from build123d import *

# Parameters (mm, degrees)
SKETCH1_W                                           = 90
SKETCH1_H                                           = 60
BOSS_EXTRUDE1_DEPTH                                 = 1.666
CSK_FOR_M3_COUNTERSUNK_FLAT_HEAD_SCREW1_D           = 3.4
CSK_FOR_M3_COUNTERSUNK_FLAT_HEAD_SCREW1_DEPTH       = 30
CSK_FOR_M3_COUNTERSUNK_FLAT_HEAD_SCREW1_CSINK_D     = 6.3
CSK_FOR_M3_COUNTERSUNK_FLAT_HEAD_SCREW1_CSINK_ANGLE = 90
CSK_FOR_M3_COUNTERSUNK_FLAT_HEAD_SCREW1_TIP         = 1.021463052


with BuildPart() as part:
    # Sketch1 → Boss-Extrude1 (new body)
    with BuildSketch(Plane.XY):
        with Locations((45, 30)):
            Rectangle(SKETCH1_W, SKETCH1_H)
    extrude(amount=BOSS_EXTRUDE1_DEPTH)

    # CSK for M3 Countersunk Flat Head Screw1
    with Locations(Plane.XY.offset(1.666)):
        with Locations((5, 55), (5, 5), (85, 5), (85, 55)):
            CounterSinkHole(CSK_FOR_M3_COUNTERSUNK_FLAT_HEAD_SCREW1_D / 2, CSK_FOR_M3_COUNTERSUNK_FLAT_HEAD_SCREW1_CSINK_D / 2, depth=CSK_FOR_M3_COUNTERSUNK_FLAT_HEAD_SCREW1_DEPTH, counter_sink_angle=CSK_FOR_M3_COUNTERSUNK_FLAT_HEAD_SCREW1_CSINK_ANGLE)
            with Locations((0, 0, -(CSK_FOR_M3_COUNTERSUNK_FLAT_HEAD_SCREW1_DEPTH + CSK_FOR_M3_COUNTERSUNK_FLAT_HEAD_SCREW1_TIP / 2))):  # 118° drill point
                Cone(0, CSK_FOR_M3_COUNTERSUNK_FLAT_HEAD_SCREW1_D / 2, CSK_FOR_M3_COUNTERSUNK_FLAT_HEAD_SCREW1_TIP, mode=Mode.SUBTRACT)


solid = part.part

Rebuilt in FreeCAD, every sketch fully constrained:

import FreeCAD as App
import Part
import Sketcher

V = App.Vector


def add_polygon(sketch, points):
    """Adds a closed chain of lines whose ends are joined by coincident constraints."""
    first, n = sketch.GeometryCount, len(points)
    for a, b in zip(points, points[1:] + points[:1]):
        sketch.addGeometry(Part.LineSegment(App.Vector(*a, 0), App.Vector(*b, 0)), False)
    for i in range(n):
        sketch.addConstraint(Sketcher.Constraint("Coincident", first + i, 2, first + (i + 1) % n, 1))

doc = App.newDocument("Part")
body = doc.addObject("PartDesign::Body", "Body")

# Sketch on XY plane
sketch1 = body.newObject("Sketcher::SketchObject", "Sketch")
sketch1.AttachmentSupport = (doc.getObject("XY_Plane"), [""])
sketch1.MapMode = "FlatFace"
add_polygon(sketch1, [(0, 60), (0, 0), (90, 0), (90, 60)])  # lines 0-3
sketch1.addConstraint(Sketcher.Constraint("Vertical", 0))
sketch1.addConstraint(Sketcher.Constraint("Horizontal", 1))
sketch1.addConstraint(Sketcher.Constraint("Vertical", 2))
sketch1.addConstraint(Sketcher.Constraint("Horizontal", 3))
sketch1.addConstraint(Sketcher.Constraint("Coincident", 0, 2, -1, 1))
sketch1.addConstraint(Sketcher.Constraint("DistanceX", 1, 1, 1, 2, 90.0))
sketch1.addConstraint(Sketcher.Constraint("DistanceY", 0, 2, 0, 1, 60.0))
pad1 = body.newObject("PartDesign::Pad", "Pad")
pad1.Profile = sketch1
pad1.Length = 1.666

# Sketch on XY plane
sketch2 = body.newObject("Sketcher::SketchObject", "Sketch001")
sketch2.AttachmentSupport = (doc.getObject("XY_Plane"), [""])
sketch2.MapMode = "FlatFace"
sketch2.AttachmentOffset = App.Placement(V(0, 0, 1.666), App.Rotation())
sketch2.addGeometry(Part.Circle(V(5, 55, 0), V(0, 0, 1), 1.7), False)
sketch2.addGeometry(Part.Circle(V(5, 5, 0), V(0, 0, 1), 1.7), False)
sketch2.addGeometry(Part.Circle(V(85, 5, 0), V(0, 0, 1), 1.7), False)
sketch2.addGeometry(Part.Circle(V(85, 55, 0), V(0, 0, 1), 1.7), False)
sketch2.addConstraint(Sketcher.Constraint("Equal", 0, 1))
sketch2.addConstraint(Sketcher.Constraint("Equal", 1, 2))
sketch2.addConstraint(Sketcher.Constraint("Equal", 2, 3))
sketch2.addConstraint(Sketcher.Constraint("Horizontal", 1, 3, 2, 3))
sketch2.addConstraint(Sketcher.Constraint("Horizontal", 0, 3, 3, 3))
sketch2.addConstraint(Sketcher.Constraint("Vertical", 0, 3, 1, 3))
sketch2.addConstraint(Sketcher.Constraint("Vertical", 2, 3, 3, 3))
sketch2.addConstraint(Sketcher.Constraint("Diameter", 0, 3.4))
sketch2.addConstraint(Sketcher.Constraint("DistanceX", -1, 1, 0, 3, 5.0))
sketch2.addConstraint(Sketcher.Constraint("DistanceY", -1, 1, 0, 3, 55.0))
sketch2.addConstraint(Sketcher.Constraint("DistanceY", -1, 1, 1, 3, 5.0))
sketch2.addConstraint(Sketcher.Constraint("DistanceX", -1, 1, 2, 3, 85.0))
doc.recompute()
hole = body.newObject("PartDesign::Hole", "Hole")
hole.Profile = sketch2
hole.ThreadType = "None"
hole.Diameter = 3.4
hole.DepthType = "Dimension"
hole.Depth = 30
hole.DrillPoint = "Angled"
hole.DrillPointAngle = 118
hole.HoleCutType = "Countersink"
hole.HoleCutDiameter = 6.3
hole.HoleCutCountersinkAngle = 90

doc.recompute()
